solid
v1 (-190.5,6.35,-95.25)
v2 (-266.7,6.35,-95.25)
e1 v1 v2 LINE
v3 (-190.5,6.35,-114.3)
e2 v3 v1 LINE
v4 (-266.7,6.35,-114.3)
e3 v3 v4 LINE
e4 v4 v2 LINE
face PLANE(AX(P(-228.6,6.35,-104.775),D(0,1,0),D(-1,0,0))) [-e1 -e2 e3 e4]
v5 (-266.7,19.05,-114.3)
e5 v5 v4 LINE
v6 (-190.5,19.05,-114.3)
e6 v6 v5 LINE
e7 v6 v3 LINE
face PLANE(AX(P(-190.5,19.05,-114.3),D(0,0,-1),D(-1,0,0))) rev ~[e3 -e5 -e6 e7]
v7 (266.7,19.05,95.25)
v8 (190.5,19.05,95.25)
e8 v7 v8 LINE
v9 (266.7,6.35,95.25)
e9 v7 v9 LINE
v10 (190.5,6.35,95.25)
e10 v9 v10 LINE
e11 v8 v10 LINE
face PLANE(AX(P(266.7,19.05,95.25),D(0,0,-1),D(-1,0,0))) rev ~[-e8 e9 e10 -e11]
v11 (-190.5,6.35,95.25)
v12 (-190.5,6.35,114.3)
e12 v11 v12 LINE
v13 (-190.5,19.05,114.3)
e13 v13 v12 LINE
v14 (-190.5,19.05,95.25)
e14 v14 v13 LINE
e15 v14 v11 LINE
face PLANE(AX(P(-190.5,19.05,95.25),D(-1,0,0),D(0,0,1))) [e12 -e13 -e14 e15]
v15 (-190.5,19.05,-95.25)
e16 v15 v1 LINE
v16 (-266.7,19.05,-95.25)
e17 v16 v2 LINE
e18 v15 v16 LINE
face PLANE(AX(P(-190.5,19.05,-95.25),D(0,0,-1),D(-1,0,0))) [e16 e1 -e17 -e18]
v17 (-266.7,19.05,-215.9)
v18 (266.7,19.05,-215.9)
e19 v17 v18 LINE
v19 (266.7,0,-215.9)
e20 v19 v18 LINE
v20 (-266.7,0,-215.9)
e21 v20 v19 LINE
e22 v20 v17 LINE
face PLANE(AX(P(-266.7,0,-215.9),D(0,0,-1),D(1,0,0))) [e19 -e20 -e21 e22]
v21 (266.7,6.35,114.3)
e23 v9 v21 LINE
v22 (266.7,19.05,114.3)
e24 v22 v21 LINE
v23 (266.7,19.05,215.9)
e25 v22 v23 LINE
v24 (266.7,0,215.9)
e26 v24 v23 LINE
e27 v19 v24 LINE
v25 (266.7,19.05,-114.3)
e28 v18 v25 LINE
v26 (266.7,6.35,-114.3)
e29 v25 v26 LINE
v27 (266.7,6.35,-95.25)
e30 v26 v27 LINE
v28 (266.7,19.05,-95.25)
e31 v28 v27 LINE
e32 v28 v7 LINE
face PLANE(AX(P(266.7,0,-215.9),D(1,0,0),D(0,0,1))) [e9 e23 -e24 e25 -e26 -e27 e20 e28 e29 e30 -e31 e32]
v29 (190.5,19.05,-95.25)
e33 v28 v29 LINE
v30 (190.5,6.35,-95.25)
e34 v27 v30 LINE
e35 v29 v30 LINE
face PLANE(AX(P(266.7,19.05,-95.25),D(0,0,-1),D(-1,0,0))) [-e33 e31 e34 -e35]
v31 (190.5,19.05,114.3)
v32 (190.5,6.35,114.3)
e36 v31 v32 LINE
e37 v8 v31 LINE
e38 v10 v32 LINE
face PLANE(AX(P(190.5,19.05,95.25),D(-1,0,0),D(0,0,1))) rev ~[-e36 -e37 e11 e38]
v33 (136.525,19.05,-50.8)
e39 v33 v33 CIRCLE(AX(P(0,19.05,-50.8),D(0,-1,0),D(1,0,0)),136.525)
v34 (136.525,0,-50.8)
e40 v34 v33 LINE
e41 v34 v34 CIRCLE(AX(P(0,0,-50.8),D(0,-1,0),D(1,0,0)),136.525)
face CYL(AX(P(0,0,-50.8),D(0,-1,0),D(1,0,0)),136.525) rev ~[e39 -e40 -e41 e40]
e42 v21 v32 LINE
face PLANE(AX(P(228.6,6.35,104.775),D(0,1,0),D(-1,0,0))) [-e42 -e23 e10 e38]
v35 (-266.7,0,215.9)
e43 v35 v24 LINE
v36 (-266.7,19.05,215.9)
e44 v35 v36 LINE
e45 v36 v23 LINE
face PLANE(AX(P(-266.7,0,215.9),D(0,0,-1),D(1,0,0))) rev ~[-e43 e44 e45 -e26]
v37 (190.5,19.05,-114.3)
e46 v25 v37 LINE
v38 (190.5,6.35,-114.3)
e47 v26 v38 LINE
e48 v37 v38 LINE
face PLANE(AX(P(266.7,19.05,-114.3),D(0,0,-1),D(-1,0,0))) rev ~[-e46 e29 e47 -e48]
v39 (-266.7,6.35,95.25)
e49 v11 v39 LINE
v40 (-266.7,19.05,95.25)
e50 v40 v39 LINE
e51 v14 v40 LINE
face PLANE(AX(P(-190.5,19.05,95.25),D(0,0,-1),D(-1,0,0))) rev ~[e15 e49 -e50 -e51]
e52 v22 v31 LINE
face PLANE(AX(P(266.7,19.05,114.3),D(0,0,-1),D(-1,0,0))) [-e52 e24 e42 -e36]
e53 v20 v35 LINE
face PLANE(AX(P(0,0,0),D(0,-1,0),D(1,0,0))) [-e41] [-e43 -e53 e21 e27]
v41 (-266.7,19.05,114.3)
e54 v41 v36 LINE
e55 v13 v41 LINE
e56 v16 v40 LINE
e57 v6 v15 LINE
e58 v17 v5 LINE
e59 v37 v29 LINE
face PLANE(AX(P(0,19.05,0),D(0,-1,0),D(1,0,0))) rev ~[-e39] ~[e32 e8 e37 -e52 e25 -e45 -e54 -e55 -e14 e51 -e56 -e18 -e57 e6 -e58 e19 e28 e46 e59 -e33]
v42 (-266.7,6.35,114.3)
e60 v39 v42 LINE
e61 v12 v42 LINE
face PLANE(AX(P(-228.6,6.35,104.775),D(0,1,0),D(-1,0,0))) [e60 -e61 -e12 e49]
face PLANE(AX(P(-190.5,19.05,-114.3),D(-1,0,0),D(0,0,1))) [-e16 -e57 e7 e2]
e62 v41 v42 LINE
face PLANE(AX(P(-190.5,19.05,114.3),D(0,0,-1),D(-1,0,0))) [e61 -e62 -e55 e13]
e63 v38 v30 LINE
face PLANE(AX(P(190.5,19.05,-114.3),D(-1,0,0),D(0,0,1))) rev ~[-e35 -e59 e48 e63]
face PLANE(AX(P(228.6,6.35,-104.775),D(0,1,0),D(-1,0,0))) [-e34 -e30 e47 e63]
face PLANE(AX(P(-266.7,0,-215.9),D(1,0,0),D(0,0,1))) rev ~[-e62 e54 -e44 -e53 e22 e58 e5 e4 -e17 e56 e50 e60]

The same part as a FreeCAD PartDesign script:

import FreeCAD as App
import Part
import Sketcher
from FreeCAD import Vector
Q = App.Units.Quantity


def add_polygon(sketch, points):
    """Adds a closed chain of lines whose ends are joined by coincident constraints."""
    first, n = sketch.GeometryCount, len(points)
    for a, b in zip(points, points[1:] + points[:1]):
        sketch.addGeometry(Part.LineSegment(App.Vector(*a, 0), App.Vector(*b, 0)), False)
    for i in range(n):
        sketch.addConstraint(Sketcher.Constraint("Coincident", first + i, 2, first + (i + 1) % n, 1))

doc = App.newDocument("Part")
body = doc.addObject("PartDesign::Body", "Body")

# Sketch on XZ plane
sketch1 = body.newObject("Sketcher::SketchObject", "Sketch")
sketch1.AttachmentSupport = (doc.getObject("XZ_Plane"), [""])
sketch1.MapMode = "FlatFace"
add_polygon(sketch1, [(-267, 216), (-267, -216), (267, -216), (267, 216)])  # lines 0-3
sketch1.addGeometry(Part.Circle(Vector(0, -51, 0), Vector(0, 0, 1), 137), False)  # 4
sketch1.addConstraint([
    Sketcher.Constraint("Vertical", 0),
    Sketcher.Constraint("Horizontal", 1),
    Sketcher.Constraint("Vertical", 2),
    Sketcher.Constraint("Horizontal", 3),
    Sketcher.Constraint("Symmetric", 0, 2, 2, 2, -1, 1),
    Sketcher.Constraint("PointOnObject", 4, 3, -2),
    Sketcher.Constraint("Diameter", 4, Q("10.75 in")),
    Sketcher.Constraint("DistanceX", 1, 1, 1, 2, Q("21 in")),
    Sketcher.Constraint("DistanceY", 0, 2, 0, 1, Q("17 in")),
    Sketcher.Constraint("DistanceY", 4, 3, -1, 1, Q("2 in")),
])
pad1 = body.newObject("PartDesign::Pad", "Pad")
pad1.Profile = sketch1
pad1.Length = Q("0.75 in")
pad1.Reversed = True

# Sketch on XZ plane
sketch2 = body.newObject("Sketcher::SketchObject", "Sketch001")
sketch2.AttachmentSupport = (doc.getObject("XZ_Plane"), [""])
sketch2.MapMode = "FlatFace"
sketch2.AttachmentOffset = App.Placement(Vector(0, 0, -0.75 * 25.4), App.Rotation())
add_polygon(sketch2, [(267, 114), (267, 95), (190, 95), (190, 114)])  # lines 0-3
add_polygon(sketch2, [(267, -95), (267, -114), (190, -114), (190, -95)])  # lines 4-7
add_polygon(sketch2, [(-190, 114), (-190, 95), (-267, 95), (-267, 114)])  # lines 8-11
add_polygon(sketch2, [(-190, -95), (-190, -114), (-267, -114), (-267, -95)])  # lines 12-15
sketch2.addConstraint([
    Sketcher.Constraint("Vertical", 0),
    Sketcher.Constraint("Horizontal", 1),
    Sketcher.Constraint("Vertical", 2),
    Sketcher.Constraint("Horizontal", 3),
    Sketcher.Constraint("Vertical", 4),
    Sketcher.Constraint("Horizontal", 5),
    Sketcher.Constraint("Vertical", 6),
    Sketcher.Constraint("Horizontal", 7),
    Sketcher.Constraint("Vertical", 8),
    Sketcher.Constraint("Horizontal", 9),
    Sketcher.Constraint("Vertical", 10),
    Sketcher.Constraint("Horizontal", 11),
    Sketcher.Constraint("Vertical", 12),
    Sketcher.Constraint("Horizontal", 13),
    Sketcher.Constraint("Vertical", 14),
    Sketcher.Constraint("Horizontal", 15),
    Sketcher.Constraint("Symmetric", 6, 2, 8, 2, -1, 1),
    Sketcher.Constraint("Symmetric", 4, 2, 10, 2, -1, 1),
    Sketcher.Constraint("Symmetric", 2, 2, 12, 2, -1, 1),
    Sketcher.Constraint("Symmetric", 0, 2, 14, 2, -1, 1),
    Sketcher.Constraint("Symmetric", 1, 2, 8, 2, -2),
    Sketcher.Constraint("Symmetric", 3, 2, 10, 2, -2),
    Sketcher.Constraint("DistanceX", 1, 2, 1, 1, Q("3 in")),
    Sketcher.Constraint("DistanceY", 4, 2, 3, 2, Q("9 in")),
    Sketcher.Constraint("DistanceX", 8, 2, 1, 2, Q("15 in")),
    Sketcher.Constraint("DistanceY", 0, 2, 0, 1, Q("0.75 in")),
])
pocket1 = body.newObject("PartDesign::Pocket", "Pocket")
pocket1.Profile = sketch2
pocket1.Length = Q("0.5 in")
pocket1.Reversed = True

doc.recompute()
